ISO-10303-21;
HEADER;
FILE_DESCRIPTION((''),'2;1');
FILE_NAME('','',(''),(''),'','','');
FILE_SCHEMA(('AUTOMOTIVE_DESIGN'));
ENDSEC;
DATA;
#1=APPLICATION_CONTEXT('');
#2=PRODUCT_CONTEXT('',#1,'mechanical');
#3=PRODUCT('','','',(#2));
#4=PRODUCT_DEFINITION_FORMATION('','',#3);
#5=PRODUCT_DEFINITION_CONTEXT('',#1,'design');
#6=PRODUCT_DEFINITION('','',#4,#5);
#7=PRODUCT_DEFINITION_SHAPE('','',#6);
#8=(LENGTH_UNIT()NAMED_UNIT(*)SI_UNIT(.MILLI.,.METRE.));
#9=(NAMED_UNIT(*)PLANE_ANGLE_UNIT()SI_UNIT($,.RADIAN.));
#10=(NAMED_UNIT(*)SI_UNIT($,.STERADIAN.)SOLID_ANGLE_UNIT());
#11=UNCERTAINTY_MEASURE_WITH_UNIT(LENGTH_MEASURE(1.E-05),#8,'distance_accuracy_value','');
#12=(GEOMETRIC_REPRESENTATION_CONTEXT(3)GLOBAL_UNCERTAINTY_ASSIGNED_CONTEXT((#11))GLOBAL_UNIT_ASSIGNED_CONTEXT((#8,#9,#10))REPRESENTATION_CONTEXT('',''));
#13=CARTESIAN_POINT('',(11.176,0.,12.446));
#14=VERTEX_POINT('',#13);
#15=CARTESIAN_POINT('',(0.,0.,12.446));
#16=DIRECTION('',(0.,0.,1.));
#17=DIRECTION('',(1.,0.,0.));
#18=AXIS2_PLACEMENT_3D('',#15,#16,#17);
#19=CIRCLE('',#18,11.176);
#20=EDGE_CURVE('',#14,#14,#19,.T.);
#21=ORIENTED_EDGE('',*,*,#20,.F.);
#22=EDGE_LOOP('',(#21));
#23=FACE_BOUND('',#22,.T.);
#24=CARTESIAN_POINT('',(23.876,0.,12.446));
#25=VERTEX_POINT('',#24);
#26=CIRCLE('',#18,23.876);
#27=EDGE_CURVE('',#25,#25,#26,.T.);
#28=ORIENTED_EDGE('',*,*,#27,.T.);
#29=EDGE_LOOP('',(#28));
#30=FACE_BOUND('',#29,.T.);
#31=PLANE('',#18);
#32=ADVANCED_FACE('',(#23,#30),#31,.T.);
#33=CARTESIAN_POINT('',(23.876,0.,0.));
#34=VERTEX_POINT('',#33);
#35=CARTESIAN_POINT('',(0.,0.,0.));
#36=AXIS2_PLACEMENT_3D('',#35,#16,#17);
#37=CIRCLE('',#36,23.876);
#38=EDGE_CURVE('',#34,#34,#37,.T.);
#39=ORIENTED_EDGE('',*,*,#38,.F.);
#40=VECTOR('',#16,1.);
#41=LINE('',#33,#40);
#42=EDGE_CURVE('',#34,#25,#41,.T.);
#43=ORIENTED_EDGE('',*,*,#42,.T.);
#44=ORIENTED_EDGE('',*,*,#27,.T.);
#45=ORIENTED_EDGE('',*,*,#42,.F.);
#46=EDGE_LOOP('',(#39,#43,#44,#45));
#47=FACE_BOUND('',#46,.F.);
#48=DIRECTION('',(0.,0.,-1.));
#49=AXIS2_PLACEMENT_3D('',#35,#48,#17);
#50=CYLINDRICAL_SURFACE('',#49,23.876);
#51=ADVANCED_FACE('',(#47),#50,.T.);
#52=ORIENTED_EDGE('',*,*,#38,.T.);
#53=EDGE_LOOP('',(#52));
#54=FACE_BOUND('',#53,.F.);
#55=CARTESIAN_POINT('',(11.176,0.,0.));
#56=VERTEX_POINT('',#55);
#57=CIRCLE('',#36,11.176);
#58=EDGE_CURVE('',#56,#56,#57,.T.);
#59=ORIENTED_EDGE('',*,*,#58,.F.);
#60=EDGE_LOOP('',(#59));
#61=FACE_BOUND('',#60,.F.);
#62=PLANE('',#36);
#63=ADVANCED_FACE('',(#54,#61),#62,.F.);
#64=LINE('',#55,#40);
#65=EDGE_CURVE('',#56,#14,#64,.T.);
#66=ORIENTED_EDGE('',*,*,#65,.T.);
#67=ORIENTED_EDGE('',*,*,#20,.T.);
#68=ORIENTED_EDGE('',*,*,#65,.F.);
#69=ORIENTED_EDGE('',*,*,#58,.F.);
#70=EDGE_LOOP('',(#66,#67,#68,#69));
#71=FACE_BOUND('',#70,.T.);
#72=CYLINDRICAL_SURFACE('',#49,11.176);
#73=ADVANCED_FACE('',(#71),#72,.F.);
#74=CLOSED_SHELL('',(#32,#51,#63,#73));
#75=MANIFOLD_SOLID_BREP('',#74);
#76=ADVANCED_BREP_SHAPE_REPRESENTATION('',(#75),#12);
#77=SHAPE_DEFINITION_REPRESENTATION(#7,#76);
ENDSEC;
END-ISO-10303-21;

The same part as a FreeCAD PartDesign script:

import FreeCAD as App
import Part
import Sketcher

V = App.Vector
Q = App.Units.Quantity

doc = App.newDocument("Part")
body = doc.addObject("PartDesign::Body", "Body")

sketch1 = body.newObject("Sketcher::SketchObject", "Sketch")
sketch1.AttachmentSupport = (doc.getObject("XY_Plane"), [""])
sketch1.MapMode = "FlatFace"
sketch1.addGeometry(Part.Circle(V(0, 0, 0), V(0, 0, 1), 24), False)
sketch1.addGeometry(Part.Circle(V(0, 0, 0), V(0, 0, 1), 11), False)
sketch1.addConstraint(Sketcher.Constraint("Coincident", 0, 3, -1, 1))
sketch1.addConstraint(Sketcher.Constraint("Coincident", 1, 3, -1, 1))
sketch1.addConstraint(Sketcher.Constraint("Diameter", 1, Q("0.88 in")))
sketch1.addConstraint(Sketcher.Constraint("Diameter", 0, Q("1.88 in")))
pad1 = body.newObject("PartDesign::Pad", "Pad")
pad1.Profile = sketch1
pad1.Length = Q("0.49 in")

doc.recompute()
